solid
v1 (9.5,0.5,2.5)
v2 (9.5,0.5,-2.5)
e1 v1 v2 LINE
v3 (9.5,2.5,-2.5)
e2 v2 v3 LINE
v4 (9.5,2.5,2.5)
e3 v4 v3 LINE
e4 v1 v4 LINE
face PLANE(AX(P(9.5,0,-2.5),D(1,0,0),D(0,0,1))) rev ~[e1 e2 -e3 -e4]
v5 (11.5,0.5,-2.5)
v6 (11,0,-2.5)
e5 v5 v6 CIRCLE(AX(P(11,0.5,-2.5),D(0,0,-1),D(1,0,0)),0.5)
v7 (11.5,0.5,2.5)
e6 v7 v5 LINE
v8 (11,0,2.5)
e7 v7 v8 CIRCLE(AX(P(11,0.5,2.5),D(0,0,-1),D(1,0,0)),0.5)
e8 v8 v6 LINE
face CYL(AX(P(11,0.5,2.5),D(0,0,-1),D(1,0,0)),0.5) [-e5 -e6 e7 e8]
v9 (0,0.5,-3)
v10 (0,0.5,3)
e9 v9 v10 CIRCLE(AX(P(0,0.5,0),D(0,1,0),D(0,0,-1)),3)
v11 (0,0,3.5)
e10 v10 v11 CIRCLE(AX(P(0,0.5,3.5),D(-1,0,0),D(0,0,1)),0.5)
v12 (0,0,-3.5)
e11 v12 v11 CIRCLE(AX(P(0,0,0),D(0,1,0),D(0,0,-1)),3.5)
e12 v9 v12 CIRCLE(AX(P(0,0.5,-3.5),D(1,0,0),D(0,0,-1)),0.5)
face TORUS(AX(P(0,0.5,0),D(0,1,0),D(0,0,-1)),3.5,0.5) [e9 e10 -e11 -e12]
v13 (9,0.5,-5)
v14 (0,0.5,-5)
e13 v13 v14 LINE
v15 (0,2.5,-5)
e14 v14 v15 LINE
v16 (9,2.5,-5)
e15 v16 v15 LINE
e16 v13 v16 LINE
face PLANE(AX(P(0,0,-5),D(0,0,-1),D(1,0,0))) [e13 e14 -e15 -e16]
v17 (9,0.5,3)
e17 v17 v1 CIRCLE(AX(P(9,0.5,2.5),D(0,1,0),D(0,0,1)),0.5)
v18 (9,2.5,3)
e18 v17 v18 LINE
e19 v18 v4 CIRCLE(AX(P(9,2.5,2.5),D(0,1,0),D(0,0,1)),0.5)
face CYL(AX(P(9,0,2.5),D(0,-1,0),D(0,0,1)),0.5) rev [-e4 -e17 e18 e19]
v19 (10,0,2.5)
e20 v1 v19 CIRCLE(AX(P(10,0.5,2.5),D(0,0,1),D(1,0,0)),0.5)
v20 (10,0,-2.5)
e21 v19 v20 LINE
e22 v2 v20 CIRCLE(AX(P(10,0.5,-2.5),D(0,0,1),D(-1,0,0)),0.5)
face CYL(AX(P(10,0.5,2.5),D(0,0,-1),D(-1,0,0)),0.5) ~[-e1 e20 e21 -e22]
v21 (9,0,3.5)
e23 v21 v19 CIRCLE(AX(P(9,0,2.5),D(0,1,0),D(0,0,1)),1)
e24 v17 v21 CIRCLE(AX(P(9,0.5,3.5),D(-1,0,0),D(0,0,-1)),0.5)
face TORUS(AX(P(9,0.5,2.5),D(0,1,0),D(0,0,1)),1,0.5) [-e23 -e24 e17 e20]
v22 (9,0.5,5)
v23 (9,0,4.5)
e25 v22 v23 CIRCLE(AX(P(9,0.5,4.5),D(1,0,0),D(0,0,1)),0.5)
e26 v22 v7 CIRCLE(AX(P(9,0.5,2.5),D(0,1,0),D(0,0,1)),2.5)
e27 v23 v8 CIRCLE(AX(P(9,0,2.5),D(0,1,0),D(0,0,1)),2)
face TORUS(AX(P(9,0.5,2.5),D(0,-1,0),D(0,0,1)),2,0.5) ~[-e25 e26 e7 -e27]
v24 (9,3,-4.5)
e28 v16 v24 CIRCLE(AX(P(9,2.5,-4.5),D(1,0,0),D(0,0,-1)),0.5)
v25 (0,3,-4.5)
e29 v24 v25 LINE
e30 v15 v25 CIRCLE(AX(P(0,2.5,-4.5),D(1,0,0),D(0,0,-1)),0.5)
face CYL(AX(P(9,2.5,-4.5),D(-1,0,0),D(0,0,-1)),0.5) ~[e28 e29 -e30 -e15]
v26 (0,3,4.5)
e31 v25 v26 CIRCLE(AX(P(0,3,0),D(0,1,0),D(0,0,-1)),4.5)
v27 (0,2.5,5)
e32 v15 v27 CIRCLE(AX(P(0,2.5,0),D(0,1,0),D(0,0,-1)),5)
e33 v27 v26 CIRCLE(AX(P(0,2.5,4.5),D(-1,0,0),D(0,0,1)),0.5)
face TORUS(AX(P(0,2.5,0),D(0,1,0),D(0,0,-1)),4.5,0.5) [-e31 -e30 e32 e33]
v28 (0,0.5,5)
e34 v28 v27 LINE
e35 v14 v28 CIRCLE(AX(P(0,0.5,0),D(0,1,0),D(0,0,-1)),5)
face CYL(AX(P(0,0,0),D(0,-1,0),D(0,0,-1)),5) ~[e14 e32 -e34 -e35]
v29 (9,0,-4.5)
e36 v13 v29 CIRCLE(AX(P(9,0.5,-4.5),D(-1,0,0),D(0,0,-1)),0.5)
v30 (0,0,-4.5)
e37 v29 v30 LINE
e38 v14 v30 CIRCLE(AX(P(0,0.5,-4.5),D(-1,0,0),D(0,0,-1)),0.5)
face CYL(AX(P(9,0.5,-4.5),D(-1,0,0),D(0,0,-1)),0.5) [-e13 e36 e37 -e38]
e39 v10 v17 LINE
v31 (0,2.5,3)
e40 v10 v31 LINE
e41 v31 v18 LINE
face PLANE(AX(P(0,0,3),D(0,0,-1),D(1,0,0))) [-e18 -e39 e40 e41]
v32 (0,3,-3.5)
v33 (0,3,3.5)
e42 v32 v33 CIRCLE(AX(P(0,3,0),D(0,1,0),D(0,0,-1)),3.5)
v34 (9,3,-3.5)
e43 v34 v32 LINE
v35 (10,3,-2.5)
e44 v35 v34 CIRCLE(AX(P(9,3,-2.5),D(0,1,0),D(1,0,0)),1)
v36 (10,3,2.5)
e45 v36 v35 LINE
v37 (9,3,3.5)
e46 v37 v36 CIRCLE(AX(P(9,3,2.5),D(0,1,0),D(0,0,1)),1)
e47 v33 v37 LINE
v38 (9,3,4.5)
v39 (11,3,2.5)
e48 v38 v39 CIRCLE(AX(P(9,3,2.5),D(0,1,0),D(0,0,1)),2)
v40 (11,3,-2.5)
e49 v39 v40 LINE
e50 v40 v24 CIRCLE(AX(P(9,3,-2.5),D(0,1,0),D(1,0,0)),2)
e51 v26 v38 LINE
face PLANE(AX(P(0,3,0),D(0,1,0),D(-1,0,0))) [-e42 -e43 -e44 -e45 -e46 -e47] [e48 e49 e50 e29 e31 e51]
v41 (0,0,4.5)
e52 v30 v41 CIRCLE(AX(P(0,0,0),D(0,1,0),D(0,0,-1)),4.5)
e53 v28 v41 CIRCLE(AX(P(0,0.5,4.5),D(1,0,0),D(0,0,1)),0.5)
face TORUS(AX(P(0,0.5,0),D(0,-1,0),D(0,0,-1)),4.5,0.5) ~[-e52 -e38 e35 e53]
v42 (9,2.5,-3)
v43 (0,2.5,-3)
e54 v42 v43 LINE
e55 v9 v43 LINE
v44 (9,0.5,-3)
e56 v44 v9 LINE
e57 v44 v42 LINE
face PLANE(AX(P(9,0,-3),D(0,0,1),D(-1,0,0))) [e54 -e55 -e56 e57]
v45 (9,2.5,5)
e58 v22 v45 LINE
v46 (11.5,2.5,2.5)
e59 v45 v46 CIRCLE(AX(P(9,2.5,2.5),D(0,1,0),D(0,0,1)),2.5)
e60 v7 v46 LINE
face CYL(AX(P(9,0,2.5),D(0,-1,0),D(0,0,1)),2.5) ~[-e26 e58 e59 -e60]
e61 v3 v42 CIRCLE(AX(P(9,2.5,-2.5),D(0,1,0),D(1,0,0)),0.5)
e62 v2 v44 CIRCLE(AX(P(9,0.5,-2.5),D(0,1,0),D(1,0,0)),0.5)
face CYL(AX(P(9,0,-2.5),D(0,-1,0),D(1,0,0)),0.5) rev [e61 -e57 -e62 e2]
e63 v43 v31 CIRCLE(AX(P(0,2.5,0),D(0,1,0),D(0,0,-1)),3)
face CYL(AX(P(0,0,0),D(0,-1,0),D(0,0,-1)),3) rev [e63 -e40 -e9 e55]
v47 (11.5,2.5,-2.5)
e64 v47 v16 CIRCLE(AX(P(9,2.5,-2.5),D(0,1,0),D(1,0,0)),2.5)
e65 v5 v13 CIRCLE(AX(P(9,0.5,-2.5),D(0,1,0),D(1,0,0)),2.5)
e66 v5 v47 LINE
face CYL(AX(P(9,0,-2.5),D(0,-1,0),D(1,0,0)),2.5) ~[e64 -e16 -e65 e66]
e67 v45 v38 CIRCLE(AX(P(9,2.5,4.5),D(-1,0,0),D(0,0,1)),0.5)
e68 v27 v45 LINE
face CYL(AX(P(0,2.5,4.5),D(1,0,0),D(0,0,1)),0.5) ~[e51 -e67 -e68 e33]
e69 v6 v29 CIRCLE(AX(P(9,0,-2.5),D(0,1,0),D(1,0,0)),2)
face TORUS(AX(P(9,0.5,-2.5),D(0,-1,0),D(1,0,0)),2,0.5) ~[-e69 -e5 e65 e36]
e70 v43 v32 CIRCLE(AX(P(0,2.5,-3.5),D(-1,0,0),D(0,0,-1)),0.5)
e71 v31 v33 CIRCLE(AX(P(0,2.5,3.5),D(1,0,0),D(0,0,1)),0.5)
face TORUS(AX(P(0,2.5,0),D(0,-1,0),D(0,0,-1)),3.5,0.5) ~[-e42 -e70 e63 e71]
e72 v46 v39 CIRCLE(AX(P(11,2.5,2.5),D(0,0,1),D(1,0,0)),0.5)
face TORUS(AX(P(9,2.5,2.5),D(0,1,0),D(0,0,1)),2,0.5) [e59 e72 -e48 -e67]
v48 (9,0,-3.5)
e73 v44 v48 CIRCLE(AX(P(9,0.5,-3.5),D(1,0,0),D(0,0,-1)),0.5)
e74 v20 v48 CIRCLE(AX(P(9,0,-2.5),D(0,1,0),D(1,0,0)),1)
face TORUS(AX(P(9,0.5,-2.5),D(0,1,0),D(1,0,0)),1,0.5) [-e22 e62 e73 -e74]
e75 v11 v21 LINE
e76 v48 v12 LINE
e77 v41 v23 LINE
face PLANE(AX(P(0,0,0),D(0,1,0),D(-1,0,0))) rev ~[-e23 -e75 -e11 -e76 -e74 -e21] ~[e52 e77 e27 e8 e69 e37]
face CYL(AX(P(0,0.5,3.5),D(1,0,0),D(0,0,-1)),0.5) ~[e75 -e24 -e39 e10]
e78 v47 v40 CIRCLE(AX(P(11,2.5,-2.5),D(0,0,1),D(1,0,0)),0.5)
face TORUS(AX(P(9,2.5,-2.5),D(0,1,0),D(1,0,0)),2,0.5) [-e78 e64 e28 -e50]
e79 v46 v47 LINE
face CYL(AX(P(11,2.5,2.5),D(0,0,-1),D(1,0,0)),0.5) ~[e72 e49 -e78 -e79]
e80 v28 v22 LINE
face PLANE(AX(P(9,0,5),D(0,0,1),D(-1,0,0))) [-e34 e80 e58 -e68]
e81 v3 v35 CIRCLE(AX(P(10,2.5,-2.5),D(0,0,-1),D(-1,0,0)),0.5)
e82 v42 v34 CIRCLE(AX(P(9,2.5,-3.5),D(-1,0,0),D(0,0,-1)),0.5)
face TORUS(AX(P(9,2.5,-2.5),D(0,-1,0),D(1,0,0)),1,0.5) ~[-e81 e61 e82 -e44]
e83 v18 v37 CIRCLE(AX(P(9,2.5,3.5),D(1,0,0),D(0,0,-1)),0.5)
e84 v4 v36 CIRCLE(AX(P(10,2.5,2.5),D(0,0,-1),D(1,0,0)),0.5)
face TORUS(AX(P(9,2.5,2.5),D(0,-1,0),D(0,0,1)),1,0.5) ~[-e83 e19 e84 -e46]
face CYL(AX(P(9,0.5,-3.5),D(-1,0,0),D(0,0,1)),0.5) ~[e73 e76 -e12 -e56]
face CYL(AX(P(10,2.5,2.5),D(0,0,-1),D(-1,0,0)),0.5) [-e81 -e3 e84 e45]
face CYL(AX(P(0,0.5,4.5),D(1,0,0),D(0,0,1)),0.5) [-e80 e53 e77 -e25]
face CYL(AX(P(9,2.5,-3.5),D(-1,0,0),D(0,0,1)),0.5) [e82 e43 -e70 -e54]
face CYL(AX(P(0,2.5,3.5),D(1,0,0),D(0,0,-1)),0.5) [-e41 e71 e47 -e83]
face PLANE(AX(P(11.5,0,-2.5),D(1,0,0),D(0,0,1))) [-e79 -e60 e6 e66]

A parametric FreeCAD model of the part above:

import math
import FreeCAD as App
import Part
import Sketcher
from FreeCAD import Vector


def edges_at(feature, points):
    """Names of the edges that pass closest to the given points."""
    edges = feature.Shape.Edges
    near = lambda p: min(range(len(edges)), key=lambda i: edges[i].distToShape(Part.Vertex(*p))[0])
    return sorted({f"Edge{near(p) + 1}" for p in points})

doc = App.newDocument("Part")
params = doc.addObject("Spreadsheet::Sheet", "Params")
for row, (alias, value) in enumerate([
    ("sketch1_radius", "3 mm"),
    ("sketch1_radius2", "0.5 mm"),
    ("sketch1_radius3", "5 mm"),
    ("pad1_length", "3 mm"),
    ("fillet_radius", "0.5 mm"),
], start=1):
    params.set(f"A{row}", alias)
    params.set(f"B{row}", "=" + value)
    params.setAlias(f"B{row}", alias)

body = doc.addObject("PartDesign::Body", "Body")

# Sketch on XZ plane
sketch1 = doc.addObject("Sketcher::SketchObject", "Sketch")
body.addObject(sketch1)
sketch1.AttachmentSupport = (doc.XZ_Plane, [""])
sketch1.MapMode = "FlatFace"
sketch1.addGeometry(Part.LineSegment(Vector(9, -5, 0), Vector(0, -5, 0)), False)
sketch1.addGeometry(Part.ArcOfCircle(Part.Circle(Vector(0, 0, 0), Vector(0, 0, 1), 5), math.radians(90), math.radians(270)), False)
sketch1.addGeometry(Part.LineSegment(Vector(0, 5, 0), Vector(9, 5, 0)), False)
sketch1.addGeometry(Part.ArcOfCircle(Part.Circle(Vector(9, 2.5, 0), Vector(0, 0, 1), 2.5), math.radians(0), math.radians(90)), False)
sketch1.addGeometry(Part.LineSegment(Vector(11.5, 2.5, 0), Vector(11.5, -2.5, 0)), False)
sketch1.addGeometry(Part.ArcOfCircle(Part.Circle(Vector(9, -2.5, 0), Vector(0, 0, 1), 2.5), math.radians(-90), math.radians(0)), False)
sketch1.addGeometry(Part.LineSegment(Vector(0, -3, 0), Vector(9, -3, 0)), False)
sketch1.addGeometry(Part.ArcOfCircle(Part.Circle(Vector(9, -2.5, 0), Vector(0, 0, 1), 0.5), math.radians(-90), math.radians(0)), False)
sketch1.addGeometry(Part.LineSegment(Vector(9.5, -2.5, 0), Vector(9.5, 2.5, 0)), False)
sketch1.addGeometry(Part.ArcOfCircle(Part.Circle(Vector(9, 2.5, 0), Vector(0, 0, 1), 0.5), math.radians(0), math.radians(90)), False)
sketch1.addGeometry(Part.LineSegment(Vector(9, 3, 0), Vector(0, 3, 0)), False)
sketch1.addGeometry(Part.ArcOfCircle(Part.Circle(Vector(0, 0, 0), Vector(0, 0, 1), 3), math.radians(90), math.radians(270)), False)
sketch1.addConstraint(Sketcher.Constraint("Tangent", 0, 2, 1, 2))
sketch1.addConstraint(Sketcher.Constraint("Tangent", 1, 1, 2, 1))
sketch1.addConstraint(Sketcher.Constraint("Tangent", 2, 2, 3, 2))
sketch1.addConstraint(Sketcher.Constraint("Tangent", 3, 1, 4, 1))
sketch1.addConstraint(Sketcher.Constraint("Tangent", 4, 2, 5, 2))
sketch1.addConstraint(Sketcher.Constraint("Tangent", 5, 1, 0, 1))
sketch1.addConstraint(Sketcher.Constraint("Tangent", 6, 2, 7, 1))
sketch1.addConstraint(Sketcher.Constraint("Tangent", 7, 2, 8, 1))
sketch1.addConstraint(Sketcher.Constraint("Tangent", 8, 2, 9, 1))
sketch1.addConstraint(Sketcher.Constraint("Tangent", 9, 2, 10, 1))
sketch1.addConstraint(Sketcher.Constraint("Tangent", 10, 2, 11, 1))
sketch1.addConstraint(Sketcher.Constraint("Tangent", 11, 2, 6, 1))
sketch1.addConstraint(Sketcher.Constraint("Horizontal", 0))
sketch1.addConstraint(Sketcher.Constraint("Horizontal", 2))
sketch1.addConstraint(Sketcher.Constraint("Vertical", 4))
sketch1.addConstraint(Sketcher.Constraint("Horizontal", 6))
sketch1.addConstraint(Sketcher.Constraint("Vertical", 8))
sketch1.addConstraint(Sketcher.Constraint("Horizontal", 10))
sketch1.addConstraint(Sketcher.Constraint("Coincident", 1, 3, -1, 1))
sketch1.addConstraint(Sketcher.Constraint("Coincident", 11, 3, -1, 1))
sketch1.addConstraint(Sketcher.Constraint("Coincident", 7, 3, 5, 3))
sketch1.addConstraint(Sketcher.Constraint("Equal", 3, 5))
sketch1.addConstraint(Sketcher.Constraint("Equal", 7, 9))
sketch1.addConstraint(Sketcher.Constraint("Radius", 11, 3.0))
sketch1.addConstraint(Sketcher.Constraint("Radius", 7, 0.5))
sketch1.addConstraint(Sketcher.Constraint("Radius", 1, 5.0))
sketch1.addConstraint(Sketcher.Constraint("DistanceX", -1, 1, 7, 2, 9.5))
sketch1.setExpression("Constraints[23]", "Params.sketch1_radius")
sketch1.setExpression("Constraints[24]", "Params.sketch1_radius2")
sketch1.setExpression("Constraints[25]", "Params.sketch1_radius3")
pad1 = doc.addObject("PartDesign::Pad", "Pad")
body.addObject(pad1)
pad1.Profile = sketch1
pad1.setExpression("Length", "Params.pad1_length")
pad1.Reversed = True
doc.recompute()

fillet = doc.addObject("PartDesign::Fillet", "Fillet")
body.addObject(fillet)
fillet.Base = (pad1, edges_at(pad1, [
    (10.768, 3, 4.268),
    (11.5, 3, 0),
    (10.768, 3, -4.268),
    (4.5, 3, -5),
    (-5, 3, 0),
    (4.5, 3, 5),
    (-3, 3, 0),
    (4.5, 3, -3),
    (9.354, 3, -2.854),
    (9.5, 3, 0),
    (9.354, 3, 2.854),
    (4.5, 3, 3),
    (-3, 0, 0),
    (4.5, 0, 3),
    (9.354, 0, 2.854),
    (9.5, 0, 0),
    (9.354, 0, -2.854),
    (4.5, 0, -3),
    (10.768, 0, -4.268),
    (11.5, 0, 0),
    (10.768, 0, 4.268),
    (4.5, 0, 5),
    (-5, 0, 0),
    (4.5, 0, -5),
]))
fillet.setExpression("Radius", "Params.fillet_radius")

doc.recompute()
